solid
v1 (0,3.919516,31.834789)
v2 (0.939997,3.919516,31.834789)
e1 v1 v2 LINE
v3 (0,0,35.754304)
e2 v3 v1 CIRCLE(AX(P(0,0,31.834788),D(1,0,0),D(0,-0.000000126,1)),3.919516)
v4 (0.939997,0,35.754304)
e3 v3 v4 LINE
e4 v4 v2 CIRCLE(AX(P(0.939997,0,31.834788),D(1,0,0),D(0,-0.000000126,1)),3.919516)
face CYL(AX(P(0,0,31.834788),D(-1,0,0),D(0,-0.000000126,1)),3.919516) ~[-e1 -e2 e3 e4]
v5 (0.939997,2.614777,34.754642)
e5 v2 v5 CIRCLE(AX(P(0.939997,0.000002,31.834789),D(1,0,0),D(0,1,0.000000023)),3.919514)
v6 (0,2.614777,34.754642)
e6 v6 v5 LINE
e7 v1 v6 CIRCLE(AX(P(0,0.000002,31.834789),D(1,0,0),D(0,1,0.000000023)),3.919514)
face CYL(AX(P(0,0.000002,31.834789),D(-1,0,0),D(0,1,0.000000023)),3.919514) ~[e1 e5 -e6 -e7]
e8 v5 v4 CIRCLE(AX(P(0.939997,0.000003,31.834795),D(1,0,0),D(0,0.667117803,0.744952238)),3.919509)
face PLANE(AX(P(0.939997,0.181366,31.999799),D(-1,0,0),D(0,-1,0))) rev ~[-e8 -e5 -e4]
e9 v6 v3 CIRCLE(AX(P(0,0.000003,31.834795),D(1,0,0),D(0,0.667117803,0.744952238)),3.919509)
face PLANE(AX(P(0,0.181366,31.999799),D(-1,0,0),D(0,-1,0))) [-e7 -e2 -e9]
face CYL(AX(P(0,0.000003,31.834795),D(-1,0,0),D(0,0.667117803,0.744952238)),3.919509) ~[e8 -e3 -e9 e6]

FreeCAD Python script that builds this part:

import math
import FreeCAD as App
import Part
import Sketcher
from FreeCAD import Vector
Q = App.Units.Quantity

doc = App.newDocument("Part")
params = doc.addObject("Spreadsheet::Sheet", "Params")
for row, (alias, value) in enumerate([
    ("pad1_length", "0.939997 mm"),
], start=1):
    params.set(f"A{row}", alias)
    params.set(f"B{row}", "=" + value)
    params.setAlias(f"B{row}", alias)

body = doc.addObject("PartDesign::Body", "Body")

sketch1 = doc.addObject("Sketcher::SketchObject", "Sketch")
body.addObject(sketch1)
sketch1.AttachmentSupport = (doc.YZ_Plane, [""])
sketch1.MapMode = "FlatFace"
sketch1.addGeometry(Part.ArcOfCircle(Part.Circle(Vector(0.000002, 31.834789, 0), Vector(0, 0, 1), 3.919514), math.radians(0.000001), math.radians(48.155046)), False)
sketch1.addGeometry(Part.ArcOfCircle(Part.Circle(Vector(0.000003, 31.834795, 0), Vector(0, 0, 1), 3.919509), math.radians(48.154997), math.radians(90.00004)), False)
sketch1.addGeometry(Part.ArcOfCircle(Part.Circle(Vector(0, 31.834788, 0), Vector(0, 0, 1), 3.919516), math.radians(90.000007), math.radians(360.000007)), False)
sketch1.addConstraint(Sketcher.Constraint("Tangent", 0, 2, 1, 1))
sketch1.addConstraint(Sketcher.Constraint("Tangent", 1, 2, 2, 1))
sketch1.addConstraint(Sketcher.Constraint("Tangent", 2, 2, 0, 1))
sketch1.addConstraint(Sketcher.Constraint("PointOnObject", 0, 3, -2))
sketch1.addConstraint(Sketcher.Constraint("PointOnObject", 1, 2, -2))
sketch1.addConstraint(Sketcher.Constraint("Horizontal", 0, 3, 2, 2))
sketch1.addConstraint(Sketcher.Constraint("Radius", 1, Q("3.919509 mm")))
sketch1.addConstraint(Sketcher.Constraint("DistanceY", -1, 1, 0, 3, Q("31.834789 mm")))
sketch1.addConstraint(Sketcher.Constraint("DistanceY", 0, 2, 1, 2, Q("0.999662 mm")))
pad1 = doc.addObject("PartDesign::Pad", "Pad")
body.addObject(pad1)
pad1.Profile = sketch1
pad1.setExpression("Length", "Params.pad1_length")

doc.recompute()
